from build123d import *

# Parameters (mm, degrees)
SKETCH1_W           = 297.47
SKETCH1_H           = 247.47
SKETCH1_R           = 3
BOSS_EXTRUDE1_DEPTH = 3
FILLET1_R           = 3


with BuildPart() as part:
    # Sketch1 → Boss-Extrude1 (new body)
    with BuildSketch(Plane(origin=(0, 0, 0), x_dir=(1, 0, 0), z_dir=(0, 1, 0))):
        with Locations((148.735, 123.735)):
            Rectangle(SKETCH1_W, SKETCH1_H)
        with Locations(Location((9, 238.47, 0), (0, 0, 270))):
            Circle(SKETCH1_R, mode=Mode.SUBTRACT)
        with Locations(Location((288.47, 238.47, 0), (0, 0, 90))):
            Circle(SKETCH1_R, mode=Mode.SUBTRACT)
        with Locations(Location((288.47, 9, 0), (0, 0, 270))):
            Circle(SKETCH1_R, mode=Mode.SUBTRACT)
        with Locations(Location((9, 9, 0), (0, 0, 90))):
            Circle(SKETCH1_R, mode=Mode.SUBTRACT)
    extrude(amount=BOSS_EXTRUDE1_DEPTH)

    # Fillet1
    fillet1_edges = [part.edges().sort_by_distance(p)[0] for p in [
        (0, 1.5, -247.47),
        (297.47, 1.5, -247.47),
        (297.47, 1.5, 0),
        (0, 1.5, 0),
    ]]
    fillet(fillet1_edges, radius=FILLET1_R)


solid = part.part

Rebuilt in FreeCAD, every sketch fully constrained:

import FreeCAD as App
import Part
import Sketcher
Q = App.Units.Quantity


def edges_at(feature, points):
    """Names of the edges that pass closest to the given points."""
    edges = feature.Shape.Edges
    near = lambda p: min(range(len(edges)), key=lambda i: edges[i].distToShape(Part.Vertex(*p))[0])
    return sorted({f"Edge{near(p) + 1}" for p in points})

doc = App.newDocument("Part")
body = doc.addObject("PartDesign::Body", "Body")

sketch1 = doc.addObject("Sketcher::SketchObject", "Sketch")
body.addObject(sketch1)
sketch1.AttachmentSupport = (doc.XZ_Plane, [""])
sketch1.MapMode = "FlatFace"
sketch1.addGeometry(Part.LineSegment(App.Vector(0, -247.47, 0), App.Vector(0, 0, 0)), False)
sketch1.addGeometry(Part.LineSegment(App.Vector(0, 0, 0), App.Vector(297.47, 0, 0)), False)
sketch1.addGeometry(Part.LineSegment(App.Vector(297.47, 0, 0), App.Vector(297.47, -247.47, 0)), False)
sketch1.addGeometry(Part.LineSegment(App.Vector(297.47, -247.47, 0), App.Vector(0, -247.47, 0)), False)
sketch1.addGeometry(Part.Circle(App.Vector(9, -9, 0), App.Vector(0, 0, 1), 3), False)
sketch1.addGeometry(Part.Circle(App.Vector(288.47, -9, 0), App.Vector(0, 0, 1), 3), False)
sketch1.addGeometry(Part.Circle(App.Vector(9, -238.47, 0), App.Vector(0, 0, 1), 3), False)
sketch1.addGeometry(Part.Circle(App.Vector(288.47, -238.47, 0), App.Vector(0, 0, 1), 3), False)
sketch1.addConstraint(Sketcher.Constraint("Coincident", 0, 2, 1, 1))
sketch1.addConstraint(Sketcher.Constraint("Coincident", 1, 2, 2, 1))
sketch1.addConstraint(Sketcher.Constraint("Coincident", 2, 2, 3, 1))
sketch1.addConstraint(Sketcher.Constraint("Coincident", 3, 2, 0, 1))
sketch1.addConstraint(Sketcher.Constraint("Vertical", 0))
sketch1.addConstraint(Sketcher.Constraint("Horizontal", 1))
sketch1.addConstraint(Sketcher.Constraint("Vertical", 2))
sketch1.addConstraint(Sketcher.Constraint("Horizontal", 3))
sketch1.addConstraint(Sketcher.Constraint("Coincident", 0, 2, -1, 1))
sketch1.addConstraint(Sketcher.Constraint("Equal", 4, 5))
sketch1.addConstraint(Sketcher.Constraint("Equal", 5, 6))
sketch1.addConstraint(Sketcher.Constraint("Equal", 6, 7))
sketch1.addConstraint(Sketcher.Constraint("Horizontal", 4, 3, 5, 3))
sketch1.addConstraint(Sketcher.Constraint("Horizontal", 6, 3, 7, 3))
sketch1.addConstraint(Sketcher.Constraint("Vertical", 4, 3, 6, 3))
sketch1.addConstraint(Sketcher.Constraint("Vertical", 5, 3, 7, 3))
sketch1.addConstraint(Sketcher.Constraint("Diameter", 4, Q("6 mm")))
sketch1.addConstraint(Sketcher.Constraint("DistanceX", -1, 1, 4, 3, Q("9 mm")))
sketch1.addConstraint(Sketcher.Constraint("DistanceY", 4, 3, -1, 1, Q("9 mm")))
sketch1.addConstraint(Sketcher.Constraint("DistanceX", 5, 3, 1, 2, Q("9 mm")))
sketch1.addConstraint(Sketcher.Constraint("DistanceY", 2, 2, 7, 3, Q("9 mm")))
sketch1.addConstraint(Sketcher.Constraint("DistanceX", 1, 1, 1, 2, Q("297.47 mm")))
sketch1.addConstraint(Sketcher.Constraint("DistanceY", 0, 1, 0, 2, Q("247.47 mm")))
pad1 = doc.addObject("PartDesign::Pad", "Pad")
body.addObject(pad1)
pad1.Profile = sketch1
pad1.Length = 3
pad1.Reversed = True
doc.recompute()

fillet = doc.addObject("PartDesign::Fillet", "Fillet")
body.addObject(fillet)
fillet.Base = (pad1, edges_at(pad1, [
    (0, 1.5, -247.47),
    (297.47, 1.5, -247.47),
    (297.47, 1.5, 0),
    (0, 1.5, 0),
]))
fillet.Radius = 3

doc.recompute()
